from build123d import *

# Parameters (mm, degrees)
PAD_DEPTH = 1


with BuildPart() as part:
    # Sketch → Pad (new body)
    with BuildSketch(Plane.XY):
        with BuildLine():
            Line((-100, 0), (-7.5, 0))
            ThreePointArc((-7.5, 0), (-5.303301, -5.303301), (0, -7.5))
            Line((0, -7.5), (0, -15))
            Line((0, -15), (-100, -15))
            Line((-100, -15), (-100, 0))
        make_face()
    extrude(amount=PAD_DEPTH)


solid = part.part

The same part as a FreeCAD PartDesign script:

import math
import FreeCAD as App
import Part
import Sketcher
from FreeCAD import Vector

doc = App.newDocument("Part")
body = doc.addObject("PartDesign::Body", "Body")

sketch1 = doc.addObject("Sketcher::SketchObject", "Sketch")
body.addObject(sketch1)
sketch1.AttachmentSupport = (doc.XY_Plane, [""])
sketch1.MapMode = "FlatFace"
sketch1.addGeometry([
    Part.LineSegment(Vector(-8, 0, 0), Vector(-100, 0, 0)),
    Part.LineSegment(Vector(-100, 0, 0), Vector(-100, -15, 0)),
    Part.LineSegment(Vector(-100, -15, 0), Vector(0, -15, 0)),
    Part.LineSegment(Vector(0, -15, 0), Vector(0, -8, 0)),
    Part.ArcOfCircle(Part.Circle(Vector(0, 0, 0), Vector(0, 0, 1), 7), math.radians(180), math.radians(270)),
], False)
sketch1.addConstraint([
    Sketcher.Constraint("Coincident", 0, 2, 1, 1),
    Sketcher.Constraint("Coincident", 1, 2, 2, 1),
    Sketcher.Constraint("Coincident", 2, 2, 3, 1),
    Sketcher.Constraint("Coincident", 3, 2, 4, 2),
    Sketcher.Constraint("Coincident", 4, 1, 0, 1),
    Sketcher.Constraint("Horizontal", 0),
    Sketcher.Constraint("Vertical", 1),
    Sketcher.Constraint("Horizontal", 2),
    Sketcher.Constraint("Vertical", 3),
    Sketcher.Constraint("Coincident", 4, 3, -1, 1),
    Sketcher.Constraint("PointOnObject", 0, 2, -1),
    Sketcher.Constraint("PointOnObject", 2, 2, -2),
    Sketcher.Constraint("Radius", 4, 7.5),
    Sketcher.Constraint("DistanceX", 2, 1, 2, 2, 100.0),
    Sketcher.Constraint("DistanceY", 1, 2, 1, 1, 15.0),
])
pad1 = doc.addObject("PartDesign::Pad", "Pad")
body.addObject(pad1)
pad1.Profile = sketch1
pad1.Length = 1

doc.recompute()
